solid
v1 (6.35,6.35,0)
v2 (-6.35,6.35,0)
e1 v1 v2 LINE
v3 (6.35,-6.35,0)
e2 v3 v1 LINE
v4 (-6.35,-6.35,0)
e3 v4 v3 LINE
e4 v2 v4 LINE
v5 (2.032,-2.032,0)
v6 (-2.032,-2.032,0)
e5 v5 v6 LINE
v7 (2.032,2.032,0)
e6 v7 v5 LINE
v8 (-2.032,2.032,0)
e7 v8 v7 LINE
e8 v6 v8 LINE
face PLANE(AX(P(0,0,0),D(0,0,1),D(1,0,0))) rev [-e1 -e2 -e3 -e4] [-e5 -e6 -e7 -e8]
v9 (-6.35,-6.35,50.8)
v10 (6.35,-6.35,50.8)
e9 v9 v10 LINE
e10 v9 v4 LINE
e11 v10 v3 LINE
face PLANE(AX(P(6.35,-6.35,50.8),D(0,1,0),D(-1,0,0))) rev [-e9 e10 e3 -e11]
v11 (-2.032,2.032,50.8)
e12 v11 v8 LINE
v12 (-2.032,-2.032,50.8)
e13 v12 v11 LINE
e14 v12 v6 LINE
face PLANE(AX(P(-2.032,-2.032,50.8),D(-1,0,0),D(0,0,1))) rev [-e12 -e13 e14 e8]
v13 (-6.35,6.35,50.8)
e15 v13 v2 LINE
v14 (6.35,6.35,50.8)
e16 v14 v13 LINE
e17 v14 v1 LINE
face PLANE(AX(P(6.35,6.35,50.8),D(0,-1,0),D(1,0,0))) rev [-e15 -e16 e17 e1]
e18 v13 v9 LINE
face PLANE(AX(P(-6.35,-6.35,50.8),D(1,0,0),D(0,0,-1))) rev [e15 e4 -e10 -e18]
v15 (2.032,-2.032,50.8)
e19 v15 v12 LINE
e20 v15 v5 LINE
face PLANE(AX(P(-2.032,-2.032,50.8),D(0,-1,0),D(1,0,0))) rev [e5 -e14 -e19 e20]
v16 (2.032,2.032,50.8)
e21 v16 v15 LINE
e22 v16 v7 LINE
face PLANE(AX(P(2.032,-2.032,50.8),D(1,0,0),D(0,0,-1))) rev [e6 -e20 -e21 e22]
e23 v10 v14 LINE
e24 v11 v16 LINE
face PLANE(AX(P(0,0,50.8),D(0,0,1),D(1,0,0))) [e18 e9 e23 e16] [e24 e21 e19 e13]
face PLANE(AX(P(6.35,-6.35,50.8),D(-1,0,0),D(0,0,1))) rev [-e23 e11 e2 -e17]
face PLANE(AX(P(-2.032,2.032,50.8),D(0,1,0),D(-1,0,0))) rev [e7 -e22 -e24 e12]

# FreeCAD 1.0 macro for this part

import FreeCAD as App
import Part
import Sketcher
from FreeCAD import Vector
Q = App.Units.Quantity


def add_polygon(sketch, points):
    """Adds a closed chain of lines whose ends are joined by coincident constraints."""
    first, n = sketch.GeometryCount, len(points)
    for a, b in zip(points, points[1:] + points[:1]):
        sketch.addGeometry(Part.LineSegment(App.Vector(*a, 0), App.Vector(*b, 0)), False)
    for i in range(n):
        sketch.addConstraint(Sketcher.Constraint("Coincident", first + i, 2, first + (i + 1) % n, 1))

doc = App.newDocument("Part")
body = doc.addObject("PartDesign::Body", "Body")

# Sketch on XY plane
sketch1 = body.newObject("Sketcher::SketchObject", "Sketch")
sketch1.AttachmentSupport = (doc.getObject("XY_Plane"), [""])
sketch1.MapMode = "FlatFace"
add_polygon(sketch1, [(-6, 6), (-6, -6), (6, -6), (6, 6)])  # lines 0-3
sketch1.addConstraint([
    Sketcher.Constraint("Vertical", 0),
    Sketcher.Constraint("Horizontal", 1),
    Sketcher.Constraint("Vertical", 2),
    Sketcher.Constraint("Horizontal", 3),
    Sketcher.Constraint("Symmetric", 0, 2, 2, 2, -1, 1),
    Sketcher.Constraint("Equal", 3, 0),
    Sketcher.Constraint("DistanceX", 1, 1, 1, 2, Q("0.5 in")),
])
pad1 = body.newObject("PartDesign::Pad", "Pad")
pad1.Profile = sketch1
pad1.Length = Q("2 in")

# Sketch on XY plane
sketch2 = body.newObject("Sketcher::SketchObject", "Sketch001")
sketch2.AttachmentSupport = (doc.getObject("XY_Plane"), [""])
sketch2.MapMode = "FlatFace"
add_polygon(sketch2, [(2, 2), (2, -2), (-2, -2), (-2, 2)])  # lines 0-3
sketch2.addConstraint([
    Sketcher.Constraint("Vertical", 0),
    Sketcher.Constraint("Horizontal", 1),
    Sketcher.Constraint("Vertical", 2),
    Sketcher.Constraint("Horizontal", 3),
    Sketcher.Constraint("Symmetric", 0, 2, 2, 2, -1, 1),
    Sketcher.Constraint("Equal", 3, 0),
    Sketcher.Constraint("DistanceX", 1, 2, 1, 1, Q("0.16 in")),
])
pocket1 = body.newObject("PartDesign::Pocket", "Pocket")
pocket1.Profile = sketch2
pocket1.Type = "ThroughAll"
pocket1.Reversed = True

doc.recompute()
